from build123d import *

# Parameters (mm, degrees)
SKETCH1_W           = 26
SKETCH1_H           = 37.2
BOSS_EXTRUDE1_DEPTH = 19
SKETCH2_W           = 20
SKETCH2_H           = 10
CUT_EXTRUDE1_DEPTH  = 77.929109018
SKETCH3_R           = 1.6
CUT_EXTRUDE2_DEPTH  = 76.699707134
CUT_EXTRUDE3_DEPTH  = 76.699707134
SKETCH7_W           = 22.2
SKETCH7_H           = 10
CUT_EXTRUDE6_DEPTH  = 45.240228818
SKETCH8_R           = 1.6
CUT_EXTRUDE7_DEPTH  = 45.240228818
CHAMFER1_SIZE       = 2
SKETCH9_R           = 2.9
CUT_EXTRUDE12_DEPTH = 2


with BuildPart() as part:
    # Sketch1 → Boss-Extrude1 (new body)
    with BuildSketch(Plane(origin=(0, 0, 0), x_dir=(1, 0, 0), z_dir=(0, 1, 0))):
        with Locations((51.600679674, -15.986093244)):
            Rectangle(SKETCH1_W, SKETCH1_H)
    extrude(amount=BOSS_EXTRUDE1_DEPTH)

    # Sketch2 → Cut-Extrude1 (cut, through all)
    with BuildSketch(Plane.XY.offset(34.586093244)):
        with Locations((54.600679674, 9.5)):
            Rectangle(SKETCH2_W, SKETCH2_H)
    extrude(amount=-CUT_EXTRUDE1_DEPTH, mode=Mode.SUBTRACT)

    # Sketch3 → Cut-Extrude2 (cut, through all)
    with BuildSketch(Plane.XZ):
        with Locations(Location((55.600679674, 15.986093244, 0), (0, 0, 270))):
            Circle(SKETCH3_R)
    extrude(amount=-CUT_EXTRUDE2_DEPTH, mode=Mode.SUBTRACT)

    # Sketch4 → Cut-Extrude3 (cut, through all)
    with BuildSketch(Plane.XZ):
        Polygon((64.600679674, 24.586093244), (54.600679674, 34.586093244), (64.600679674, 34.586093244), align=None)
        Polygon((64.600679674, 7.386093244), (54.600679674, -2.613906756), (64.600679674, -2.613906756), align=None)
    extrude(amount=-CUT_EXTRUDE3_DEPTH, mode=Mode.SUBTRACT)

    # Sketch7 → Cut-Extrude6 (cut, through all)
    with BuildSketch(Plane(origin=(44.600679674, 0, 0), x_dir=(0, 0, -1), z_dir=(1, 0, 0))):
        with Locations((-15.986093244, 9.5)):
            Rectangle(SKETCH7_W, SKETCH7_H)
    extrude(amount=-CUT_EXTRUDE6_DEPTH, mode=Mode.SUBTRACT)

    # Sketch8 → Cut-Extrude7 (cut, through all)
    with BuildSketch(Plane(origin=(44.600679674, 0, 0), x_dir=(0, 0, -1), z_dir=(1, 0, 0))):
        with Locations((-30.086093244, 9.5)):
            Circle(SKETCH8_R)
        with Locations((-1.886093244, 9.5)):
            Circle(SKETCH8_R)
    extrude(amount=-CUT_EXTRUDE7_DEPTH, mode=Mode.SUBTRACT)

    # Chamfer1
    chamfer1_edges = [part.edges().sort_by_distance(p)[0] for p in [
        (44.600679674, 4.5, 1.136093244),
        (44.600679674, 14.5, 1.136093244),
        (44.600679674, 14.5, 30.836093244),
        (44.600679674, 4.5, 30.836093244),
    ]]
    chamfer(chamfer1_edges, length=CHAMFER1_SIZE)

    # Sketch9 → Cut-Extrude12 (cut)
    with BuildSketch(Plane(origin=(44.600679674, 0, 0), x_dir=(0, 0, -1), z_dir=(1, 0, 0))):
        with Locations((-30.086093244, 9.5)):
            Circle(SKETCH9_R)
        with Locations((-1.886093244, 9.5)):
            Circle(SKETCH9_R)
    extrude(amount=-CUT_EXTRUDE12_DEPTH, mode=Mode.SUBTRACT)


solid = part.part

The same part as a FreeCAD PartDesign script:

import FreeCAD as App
import Part
import Sketcher


def edges_at(feature, points):
    """Names of the edges that pass closest to the given points."""
    edges = feature.Shape.Edges
    near = lambda p: min(range(len(edges)), key=lambda i: edges[i].distToShape(Part.Vertex(*p))[0])
    return sorted({f"Edge{near(p) + 1}" for p in points})


def add_polygon(sketch, points):
    """Adds a closed chain of lines whose ends are joined by coincident constraints."""
    first, n = sketch.GeometryCount, len(points)
    for a, b in zip(points, points[1:] + points[:1]):
        sketch.addGeometry(Part.LineSegment(App.Vector(*a, 0), App.Vector(*b, 0)), False)
    for i in range(n):
        sketch.addConstraint(Sketcher.Constraint("Coincident", first + i, 2, first + (i + 1) % n, 1))

doc = App.newDocument("Part")
body = doc.addObject("PartDesign::Body", "Body")

sketch1 = body.newObject("Sketcher::SketchObject", "Sketch")
sketch1.AttachmentSupport = (doc.getObject("XZ_Plane"), [""])
sketch1.MapMode = "FlatFace"
add_polygon(sketch1, [(38.60068, -2.613907), (38.60068, 34.586093), (64.60068, 34.586093), (64.60068, -2.613907)])
sketch1.addConstraint([
    Sketcher.Constraint("Vertical", 0),
    Sketcher.Constraint("Horizontal", 1),
    Sketcher.Constraint("Vertical", 2),
    Sketcher.Constraint("Horizontal", 3),
    Sketcher.Constraint("DistanceX", 1, 1, 1, 2, 26.0),
    Sketcher.Constraint("DistanceY", 0, 1, 0, 2, 37.2),
    Sketcher.Constraint("DistanceX", -1, 1, 0, 2, 38.60068),
    Sketcher.Constraint("DistanceY", -1, 1, 0, 2, 34.586093),
])
pad1 = body.newObject("PartDesign::Pad", "Pad")
pad1.Profile = sketch1
pad1.Length = 19
pad1.Reversed = True

sketch2 = body.newObject("Sketcher::SketchObject", "Sketch001")
sketch2.AttachmentSupport = (doc.getObject("XY_Plane"), [""])
sketch2.MapMode = "FlatFace"
sketch2.AttachmentOffset = App.Placement(App.Vector(0, 0, 34.586093), App.Rotation())
add_polygon(sketch2, [(44.60068, 14.5), (44.60068, 4.5), (64.60068, 4.5), (64.60068, 14.5)])
sketch2.addConstraint([
    Sketcher.Constraint("Vertical", 0),
    Sketcher.Constraint("Horizontal", 1),
    Sketcher.Constraint("Vertical", 2),
    Sketcher.Constraint("Horizontal", 3),
    Sketcher.Constraint("DistanceX", 1, 1, 1, 2, 20.0),
    Sketcher.Constraint("DistanceY", 0, 2, 0, 1, 10.0),
    Sketcher.Constraint("DistanceY", -1, 1, 0, 2, 4.5),
    Sketcher.Constraint("DistanceX", -1, 1, 0, 2, 44.60068),
])
pocket1 = body.newObject("PartDesign::Pocket", "Pocket")
pocket1.Profile = sketch2
pocket1.Type = "ThroughAll"

sketch3 = body.newObject("Sketcher::SketchObject", "Sketch002")
sketch3.AttachmentSupport = (doc.getObject("XZ_Plane"), [""])
sketch3.MapMode = "FlatFace"
sketch3.addGeometry(Part.Circle(App.Vector(55.60068, 15.986093, 0), App.Vector(0, 0, 1), 1.6), False)
sketch3.addConstraint([
    Sketcher.Constraint("Diameter", 0, 3.2),
    Sketcher.Constraint("DistanceX", -1, 1, 0, 3, 55.60068),
    Sketcher.Constraint("DistanceY", -1, 1, 0, 3, 15.986093),
])
pocket2 = body.newObject("PartDesign::Pocket", "Pocket001")
pocket2.Profile = sketch3
pocket2.Type = "ThroughAll"

sketch4 = body.newObject("Sketcher::SketchObject", "Sketch003")
sketch4.AttachmentSupport = (doc.getObject("XZ_Plane"), [""])
sketch4.MapMode = "FlatFace"
add_polygon(sketch4, [(54.60068, 34.586093), (64.60068, 24.586093), (64.60068, 34.586093)])
add_polygon(sketch4, [(64.60068, 7.386093), (54.60068, -2.613907), (64.60068, -2.613907)])
sketch4.addConstraint([
    Sketcher.Constraint("Vertical", 1),
    Sketcher.Constraint("Horizontal", 2),
    Sketcher.Constraint("Horizontal", 4),
    Sketcher.Constraint("Vertical", 5),
    Sketcher.Constraint("Perpendicular", 0, 3),
    Sketcher.Constraint("Vertical", 2, 2, 3, 2),
    Sketcher.Constraint("Vertical", 1, 2, 4, 2),
    Sketcher.Constraint("Equal", 4, 1),
    Sketcher.Constraint("DistanceX", 2, 2, 2, 1, 10.0),
    Sketcher.Constraint("DistanceY", 3, 2, 0, 2, 27.2),
    Sketcher.Constraint("DistanceX", -1, 1, 0, 2, 64.60068),
    Sketcher.Constraint("DistanceY", -1, 1, 0, 2, 24.586093),
])
pocket3 = body.newObject("PartDesign::Pocket", "Pocket002")
pocket3.Profile = sketch4
pocket3.Type = "ThroughAll"

sketch5 = body.newObject("Sketcher::SketchObject", "Sketch004")
sketch5.AttachmentSupport = (doc.getObject("YZ_Plane"), [""])
sketch5.MapMode = "FlatFace"
sketch5.AttachmentOffset = App.Placement(App.Vector(0, 0, 44.60068), App.Rotation())
add_polygon(sketch5, [(14.5, 27.086093), (4.5, 27.086093), (4.5, 4.886093), (14.5, 4.886093)])
sketch5.addConstraint([
    Sketcher.Constraint("Horizontal", 0),
    Sketcher.Constraint("Vertical", 1),
    Sketcher.Constraint("Horizontal", 2),
    Sketcher.Constraint("Vertical", 3),
    Sketcher.Constraint("DistanceX", 0, 2, 0, 1, 10.0),
    Sketcher.Constraint("DistanceY", 1, 2, 1, 1, 22.2),
    Sketcher.Constraint("DistanceX", -1, 1, 0, 2, 4.5),
    Sketcher.Constraint("DistanceY", -1, 1, 0, 2, 27.086093),
])
pocket4 = body.newObject("PartDesign::Pocket", "Pocket003")
pocket4.Profile = sketch5
pocket4.Type = "ThroughAll"

sketch6 = body.newObject("Sketcher::SketchObject", "Sketch005")
sketch6.AttachmentSupport = (doc.getObject("YZ_Plane"), [""])
sketch6.MapMode = "FlatFace"
sketch6.AttachmentOffset = App.Placement(App.Vector(0, 0, 44.60068), App.Rotation())
sketch6.addGeometry([
    Part.Circle(App.Vector(9.5, 30.086093, 0), App.Vector(0, 0, 1), 1.6),
    Part.Circle(App.Vector(9.5, 1.886093, 0), App.Vector(0, 0, 1), 1.6),
], False)
sketch6.addConstraint([
    Sketcher.Constraint("Equal", 0, 1),
    Sketcher.Constraint("Vertical", 0, 3, 1, 3),
    Sketcher.Constraint("Diameter", 0, 3.2),
    Sketcher.Constraint("DistanceX", -1, 1, 0, 3, 9.5),
    Sketcher.Constraint("DistanceY", 1, 3, 0, 3, 28.2),
    Sketcher.Constraint("DistanceY", -1, 1, 0, 3, 30.086093),
])
pocket5 = body.newObject("PartDesign::Pocket", "Pocket004")
pocket5.Profile = sketch6
pocket5.Type = "ThroughAll"
doc.recompute()

chamfer = body.newObject("PartDesign::Chamfer", "Chamfer")
chamfer.Base = (pocket5, edges_at(pocket5, [
    (44.601, 4.5, 1.136),
    (44.601, 14.5, 1.136),
    (44.601, 14.5, 30.836),
    (44.601, 4.5, 30.836),
]))
chamfer.Size = 2

sketch7 = body.newObject("Sketcher::SketchObject", "Sketch006")
sketch7.AttachmentSupport = (doc.getObject("YZ_Plane"), [""])
sketch7.MapMode = "FlatFace"
sketch7.AttachmentOffset = App.Placement(App.Vector(0, 0, 44.60068), App.Rotation())
sketch7.addGeometry([
    Part.Circle(App.Vector(9.5, 30.086093, 0), App.Vector(0, 0, 1), 2.9),
    Part.Circle(App.Vector(9.5, 1.886093, 0), App.Vector(0, 0, 1), 2.9),
], False)
sketch7.addConstraint([
    Sketcher.Constraint("Equal", 0, 1),
    Sketcher.Constraint("Vertical", 0, 3, 1, 3),
    Sketcher.Constraint("Diameter", 0, 5.8),
    Sketcher.Constraint("DistanceX", -1, 1, 0, 3, 9.5),
    Sketcher.Constraint("DistanceY", 1, 3, 0, 3, 28.2),
    Sketcher.Constraint("DistanceY", -1, 1, 0, 3, 30.086093),
])
pocket6 = body.newObject("PartDesign::Pocket", "Pocket005")
pocket6.Profile = sketch7
pocket6.Length = 2

doc.recompute()
